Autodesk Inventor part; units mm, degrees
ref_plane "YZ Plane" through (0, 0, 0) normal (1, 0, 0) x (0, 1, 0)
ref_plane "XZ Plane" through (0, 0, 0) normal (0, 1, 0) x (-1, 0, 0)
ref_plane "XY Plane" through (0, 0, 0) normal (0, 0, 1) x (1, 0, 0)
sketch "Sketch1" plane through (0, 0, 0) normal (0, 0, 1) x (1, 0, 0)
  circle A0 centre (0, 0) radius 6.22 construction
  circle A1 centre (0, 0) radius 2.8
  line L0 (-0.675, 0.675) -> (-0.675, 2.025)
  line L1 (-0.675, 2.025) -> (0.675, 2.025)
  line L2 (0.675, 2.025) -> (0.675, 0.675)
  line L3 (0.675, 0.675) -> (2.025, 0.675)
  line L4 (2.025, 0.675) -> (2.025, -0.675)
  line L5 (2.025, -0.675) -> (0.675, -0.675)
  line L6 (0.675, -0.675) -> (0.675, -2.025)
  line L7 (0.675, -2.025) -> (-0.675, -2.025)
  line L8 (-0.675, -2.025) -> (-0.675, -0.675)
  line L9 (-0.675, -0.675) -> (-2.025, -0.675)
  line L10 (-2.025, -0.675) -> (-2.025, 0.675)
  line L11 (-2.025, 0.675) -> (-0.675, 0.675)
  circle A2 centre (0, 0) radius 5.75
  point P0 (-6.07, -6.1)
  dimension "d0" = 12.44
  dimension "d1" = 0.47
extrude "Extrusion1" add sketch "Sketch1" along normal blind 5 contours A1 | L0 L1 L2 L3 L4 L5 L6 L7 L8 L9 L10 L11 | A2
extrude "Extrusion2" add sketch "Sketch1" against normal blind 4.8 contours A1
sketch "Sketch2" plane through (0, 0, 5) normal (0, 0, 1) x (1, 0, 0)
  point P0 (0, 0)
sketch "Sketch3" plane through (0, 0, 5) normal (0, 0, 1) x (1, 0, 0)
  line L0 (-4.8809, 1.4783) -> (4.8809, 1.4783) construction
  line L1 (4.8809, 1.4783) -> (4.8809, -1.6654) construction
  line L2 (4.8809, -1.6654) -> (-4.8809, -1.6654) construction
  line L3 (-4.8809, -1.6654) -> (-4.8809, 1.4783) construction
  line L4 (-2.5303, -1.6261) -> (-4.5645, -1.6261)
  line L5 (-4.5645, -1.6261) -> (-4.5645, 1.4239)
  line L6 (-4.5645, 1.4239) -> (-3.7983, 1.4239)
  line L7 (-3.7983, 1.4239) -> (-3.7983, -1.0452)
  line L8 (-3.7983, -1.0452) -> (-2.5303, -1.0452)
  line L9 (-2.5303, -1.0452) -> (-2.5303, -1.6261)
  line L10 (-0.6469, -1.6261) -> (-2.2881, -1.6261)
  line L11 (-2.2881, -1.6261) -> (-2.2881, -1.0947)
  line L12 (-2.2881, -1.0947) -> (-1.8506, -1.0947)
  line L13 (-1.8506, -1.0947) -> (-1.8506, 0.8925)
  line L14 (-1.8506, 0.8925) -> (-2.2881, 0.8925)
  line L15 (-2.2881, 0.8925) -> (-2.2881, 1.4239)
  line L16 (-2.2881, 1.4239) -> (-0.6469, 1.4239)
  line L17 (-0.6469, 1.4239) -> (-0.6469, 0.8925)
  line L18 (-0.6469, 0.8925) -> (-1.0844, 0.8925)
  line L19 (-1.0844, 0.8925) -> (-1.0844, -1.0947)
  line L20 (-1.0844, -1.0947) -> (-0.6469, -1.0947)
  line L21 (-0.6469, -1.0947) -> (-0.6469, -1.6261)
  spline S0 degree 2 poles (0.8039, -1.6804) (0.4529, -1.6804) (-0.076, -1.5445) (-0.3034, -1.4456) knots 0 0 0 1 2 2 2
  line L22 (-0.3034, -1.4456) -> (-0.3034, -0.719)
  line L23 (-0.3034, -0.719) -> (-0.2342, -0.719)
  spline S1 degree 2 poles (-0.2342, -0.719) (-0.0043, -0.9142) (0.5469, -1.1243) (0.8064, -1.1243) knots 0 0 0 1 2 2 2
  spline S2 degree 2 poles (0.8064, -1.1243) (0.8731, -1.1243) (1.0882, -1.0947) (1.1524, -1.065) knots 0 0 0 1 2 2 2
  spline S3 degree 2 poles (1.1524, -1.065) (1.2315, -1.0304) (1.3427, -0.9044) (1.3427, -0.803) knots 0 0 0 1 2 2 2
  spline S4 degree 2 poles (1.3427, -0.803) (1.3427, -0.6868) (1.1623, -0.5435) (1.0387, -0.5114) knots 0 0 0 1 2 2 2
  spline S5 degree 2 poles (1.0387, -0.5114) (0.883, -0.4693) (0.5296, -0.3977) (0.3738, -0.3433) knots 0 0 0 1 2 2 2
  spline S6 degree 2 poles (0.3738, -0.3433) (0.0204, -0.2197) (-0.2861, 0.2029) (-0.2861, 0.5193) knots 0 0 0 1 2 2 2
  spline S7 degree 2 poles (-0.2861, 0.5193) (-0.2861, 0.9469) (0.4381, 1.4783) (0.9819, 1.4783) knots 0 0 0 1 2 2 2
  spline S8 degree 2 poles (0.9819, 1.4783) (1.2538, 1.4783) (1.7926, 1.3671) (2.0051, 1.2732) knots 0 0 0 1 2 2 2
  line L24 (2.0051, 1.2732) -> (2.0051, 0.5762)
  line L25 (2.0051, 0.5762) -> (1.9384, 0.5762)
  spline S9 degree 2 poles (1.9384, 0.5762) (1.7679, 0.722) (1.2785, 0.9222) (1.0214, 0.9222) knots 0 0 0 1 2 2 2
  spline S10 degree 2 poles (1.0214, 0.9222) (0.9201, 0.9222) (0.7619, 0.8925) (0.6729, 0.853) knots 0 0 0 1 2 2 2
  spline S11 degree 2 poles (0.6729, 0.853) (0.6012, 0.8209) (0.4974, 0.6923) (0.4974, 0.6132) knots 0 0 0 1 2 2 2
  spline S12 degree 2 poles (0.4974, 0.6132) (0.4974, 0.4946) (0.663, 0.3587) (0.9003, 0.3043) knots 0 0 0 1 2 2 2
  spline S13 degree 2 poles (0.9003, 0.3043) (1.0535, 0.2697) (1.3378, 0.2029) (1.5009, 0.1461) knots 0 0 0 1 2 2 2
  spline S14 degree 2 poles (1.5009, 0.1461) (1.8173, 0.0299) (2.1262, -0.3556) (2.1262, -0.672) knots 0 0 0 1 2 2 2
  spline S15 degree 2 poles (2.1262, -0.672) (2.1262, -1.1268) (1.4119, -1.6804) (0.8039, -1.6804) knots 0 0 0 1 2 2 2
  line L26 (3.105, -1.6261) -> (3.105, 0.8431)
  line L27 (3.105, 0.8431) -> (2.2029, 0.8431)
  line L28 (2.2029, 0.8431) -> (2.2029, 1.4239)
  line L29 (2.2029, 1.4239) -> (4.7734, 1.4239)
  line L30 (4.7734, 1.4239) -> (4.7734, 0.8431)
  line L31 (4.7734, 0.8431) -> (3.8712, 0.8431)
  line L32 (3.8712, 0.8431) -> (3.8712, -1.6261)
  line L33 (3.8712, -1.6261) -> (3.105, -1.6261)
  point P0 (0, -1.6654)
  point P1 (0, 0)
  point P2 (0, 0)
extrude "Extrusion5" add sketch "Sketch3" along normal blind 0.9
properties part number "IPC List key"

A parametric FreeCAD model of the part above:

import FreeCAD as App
import Part
import Sketcher
from FreeCAD import Vector

doc = App.newDocument("Part")
body = doc.addObject("PartDesign::Body", "Body")

# Sketch on XY plane
sketch1 = body.newObject("Sketcher::SketchObject", "Sketch")
sketch1.AttachmentSupport = (doc.getObject("XY_Plane"), [""])
sketch1.MapMode = "FlatFace"
sketch1.addGeometry(Part.Circle(Vector(0, 0, 0), Vector(0, 0, 1), 6), False)
sketch1.addConstraint([
    Sketcher.Constraint("Coincident", 0, 3, -1, 1),
    Sketcher.Constraint("Diameter", 0, 11.5),
])
pad1 = body.newObject("PartDesign::Pad", "Pad")
pad1.Profile = sketch1
pad1.Length = 5

# Sketch on XY plane
sketch2 = body.newObject("Sketcher::SketchObject", "Sketch001")
sketch2.AttachmentSupport = (doc.getObject("XY_Plane"), [""])
sketch2.MapMode = "FlatFace"
sketch2.addGeometry([
    Part.Circle(Vector(0, 0, 0), Vector(0, 0, 1), 2.8),  # 0
    Part.LineSegment(Vector(-2, 0.7, 0), Vector(-0.7, 0.7, 0)),  # 1
    Part.LineSegment(Vector(-0.7, 0.7, 0), Vector(-0.7, 2, 0)),  # 2
    Part.LineSegment(Vector(-0.7, 2, 0), Vector(0.7, 2, 0)),  # 3
    Part.LineSegment(Vector(0.7, 2, 0), Vector(0.7, 0.7, 0)),  # 4
    Part.LineSegment(Vector(0.7, 0.7, 0), Vector(2, 0.7, 0)),  # 5
    Part.LineSegment(Vector(2, 0.7, 0), Vector(2, -0.7, 0)),  # 6
    Part.LineSegment(Vector(2, -0.7, 0), Vector(0.7, -0.7, 0)),  # 7
    Part.LineSegment(Vector(0.7, -0.7, 0), Vector(0.7, -2, 0)),  # 8
    Part.LineSegment(Vector(0.7, -2, 0), Vector(-0.7, -2, 0)),  # 9
    Part.LineSegment(Vector(-0.7, -2, 0), Vector(-0.7, -0.7, 0)),  # 10
    Part.LineSegment(Vector(-0.7, -0.7, 0), Vector(-2, -0.7, 0)),  # 11
    Part.LineSegment(Vector(-2, -0.7, 0), Vector(-2, 0.7, 0)),  # 12
], False)
sketch2.addConstraint([
    Sketcher.Constraint("Coincident", 1, 2, 2, 1),
    Sketcher.Constraint("Coincident", 2, 2, 3, 1),
    Sketcher.Constraint("Coincident", 3, 2, 4, 1),
    Sketcher.Constraint("Coincident", 4, 2, 5, 1),
    Sketcher.Constraint("Coincident", 5, 2, 6, 1),
    Sketcher.Constraint("Coincident", 6, 2, 7, 1),
    Sketcher.Constraint("Coincident", 7, 2, 8, 1),
    Sketcher.Constraint("Coincident", 8, 2, 9, 1),
    Sketcher.Constraint("Coincident", 9, 2, 10, 1),
    Sketcher.Constraint("Coincident", 10, 2, 11, 1),
    Sketcher.Constraint("Coincident", 11, 2, 12, 1),
    Sketcher.Constraint("Coincident", 12, 2, 1, 1),
    Sketcher.Constraint("Horizontal", 1),
    Sketcher.Constraint("Vertical", 2),
    Sketcher.Constraint("Horizontal", 3),
    Sketcher.Constraint("Vertical", 4),
    Sketcher.Constraint("Horizontal", 5),
    Sketcher.Constraint("Vertical", 6),
    Sketcher.Constraint("Horizontal", 7),
    Sketcher.Constraint("Vertical", 8),
    Sketcher.Constraint("Horizontal", 9),
    Sketcher.Constraint("Vertical", 10),
    Sketcher.Constraint("Horizontal", 11),
    Sketcher.Constraint("Vertical", 12),
    Sketcher.Constraint("Coincident", 0, 3, -1, 1),
    Sketcher.Constraint("Symmetric", 1, 2, 7, 2, -1, 1),
    Sketcher.Constraint("Symmetric", 3, 2, 9, 2, -1, 1),
    Sketcher.Constraint("Symmetric", 5, 2, 11, 2, -1, 1),
    Sketcher.Constraint("Symmetric", 1, 2, 4, 2, -2),
    Sketcher.Constraint("Equal", 1, 3),
    Sketcher.Constraint("Equal", 11, 2),
    Sketcher.Constraint("Equal", 4, 6),
    Sketcher.Constraint("Diameter", 0, 5.6),
    Sketcher.Constraint("DistanceX", 1, 1, 1, 2, 1.35),
])
pad2 = body.newObject("PartDesign::Pad", "Pad001")
pad2.Profile = sketch2
pad2.Length = 4.8
pad2.Reversed = True

# Sketch on XY plane
sketch3 = body.newObject("Sketcher::SketchObject", "Sketch002")
sketch3.AttachmentSupport = (doc.getObject("XY_Plane"), [""])
sketch3.MapMode = "FlatFace"
sketch3.AttachmentOffset = App.Placement(Vector(0, 0, 5), App.Rotation())
sketch3.addGeometry([
    Part.LineSegment(Vector(-4.5645, -1.6261, 0), Vector(-2.5303, -1.6261, 0)),  # 0
    Part.LineSegment(Vector(-2.5303, -1.6261, 0), Vector(-2.5303, -1.0452, 0)),  # 1
    Part.LineSegment(Vector(-2.5303, -1.0452, 0), Vector(-3.7983, -1.0452, 0)),  # 2
    Part.LineSegment(Vector(-3.7983, -1.0452, 0), Vector(-3.7983, 1.4239, 0)),  # 3
    Part.LineSegment(Vector(-3.7983, 1.4239, 0), Vector(-4.5645, 1.4239, 0)),  # 4
    Part.LineSegment(Vector(-4.5645, 1.4239, 0), Vector(-4.5645, -1.6261, 0)),  # 5
    Part.LineSegment(Vector(-2.2881, -1.6261, 0), Vector(-0.6469, -1.6261, 0)),  # 6
    Part.LineSegment(Vector(-0.6469, -1.6261, 0), Vector(-0.6469, -1.0947, 0)),  # 7
    Part.LineSegment(Vector(-0.6469, -1.0947, 0), Vector(-1.0844, -1.0947, 0)),  # 8
    Part.LineSegment(Vector(-1.0844, -1.0947, 0), Vector(-1.0844, 0.8925, 0)),  # 9
    Part.LineSegment(Vector(-1.0844, 0.8925, 0), Vector(-0.6469, 0.8925, 0)),  # 10
    Part.LineSegment(Vector(-0.6469, 0.8925, 0), Vector(-0.6469, 1.4239, 0)),  # 11
    Part.LineSegment(Vector(-0.6469, 1.4239, 0), Vector(-2.2881, 1.4239, 0)),  # 12
    Part.LineSegment(Vector(-2.2881, 1.4239, 0), Vector(-2.2881, 0.8925, 0)),  # 13
    Part.LineSegment(Vector(-2.2881, 0.8925, 0), Vector(-1.8506, 0.8925, 0)),  # 14
    Part.LineSegment(Vector(-1.8506, 0.8925, 0), Vector(-1.8506, -1.0947, 0)),  # 15
    Part.LineSegment(Vector(-1.8506, -1.0947, 0), Vector(-2.2881, -1.0947, 0)),  # 16
    Part.LineSegment(Vector(-2.2881, -1.0947, 0), Vector(-2.2881, -1.6261, 0)),  # 17
    Part.BSplineCurve([Vector(0.8039, -1.6804, 0), Vector(0.4529, -1.6804, 0), Vector(-0.076, -1.5445, 0), Vector(-0.3034, -1.4456, 0)], [3, 1, 3], [0, 1, 2], False, 2, [1, 1, 1, 1], False),  # 18
    Part.BSplineCurve([Vector(2.1262, -0.672, 0), Vector(2.1262, -1.1268, 0), Vector(1.4119, -1.6804, 0), Vector(0.8039, -1.6804, 0)], [3, 1, 3], [0, 1, 2], False, 2, [1, 1, 1, 1], False),  # 19
    Part.BSplineCurve([Vector(1.5009, 0.1461, 0), Vector(1.8173, 0.0299, 0), Vector(2.1262, -0.3556, 0), Vector(2.1262, -0.672, 0)], [3, 1, 3], [0, 1, 2], False, 2, [1, 1, 1, 1], False),  # 20
    Part.BSplineCurve([Vector(0.9003, 0.3043, 0), Vector(1.0535, 0.2697, 0), Vector(1.3378, 0.2029, 0), Vector(1.5009, 0.1461, 0)], [3, 1, 3], [0, 1, 2], False, 2, [1, 1, 1, 1], False),  # 21
    Part.BSplineCurve([Vector(0.4974, 0.6132, 0), Vector(0.4974, 0.4946, 0), Vector(0.663, 0.3587, 0), Vector(0.9003, 0.3043, 0)], [3, 1, 3], [0, 1, 2], False, 2, [1, 1, 1, 1], False),  # 22
    Part.BSplineCurve([Vector(0.6729, 0.853, 0), Vector(0.6012, 0.8209, 0), Vector(0.4974, 0.6923, 0), Vector(0.4974, 0.6132, 0)], [3, 1, 3], [0, 1, 2], False, 2, [1, 1, 1, 1], False),  # 23
    Part.BSplineCurve([Vector(1.0214, 0.9222, 0), Vector(0.9201, 0.9222, 0), Vector(0.7619, 0.8925, 0), Vector(0.6729, 0.853, 0)], [3, 1, 3], [0, 1, 2], False, 2, [1, 1, 1, 1], False),  # 24
    Part.BSplineCurve([Vector(1.9384, 0.5762, 0), Vector(1.7679, 0.722, 0), Vector(1.2785, 0.9222, 0), Vector(1.0214, 0.9222, 0)], [3, 1, 3], [0, 1, 2], False, 2, [1, 1, 1, 1], False),  # 25
    Part.LineSegment(Vector(1.9384, 0.5762, 0), Vector(2.0051, 0.5762, 0)),  # 26
    Part.LineSegment(Vector(2.0051, 0.5762, 0), Vector(2.0051, 1.2732, 0)),  # 27
    Part.BSplineCurve([Vector(0.9819, 1.4783, 0), Vector(1.2538, 1.4783, 0), Vector(1.7926, 1.3671, 0), Vector(2.0051, 1.2732, 0)], [3, 1, 3], [0, 1, 2], False, 2, [1, 1, 1, 1], False),  # 28
    Part.BSplineCurve([Vector(-0.2861, 0.5193, 0), Vector(-0.2861, 0.9469, 0), Vector(0.4381, 1.4783, 0), Vector(0.9819, 1.4783, 0)], [3, 1, 3], [0, 1, 2], False, 2, [1, 1, 1, 1], False),  # 29
    Part.BSplineCurve([Vector(0.3738, -0.3433, 0), Vector(0.0204, -0.2197, 0), Vector(-0.2861, 0.2029, 0), Vector(-0.2861, 0.5193, 0)], [3, 1, 3], [0, 1, 2], False, 2, [1, 1, 1, 1], False),  # 30
    Part.BSplineCurve([Vector(1.0387, -0.5114, 0), Vector(0.883, -0.4693, 0), Vector(0.5296, -0.3977, 0), Vector(0.3738, -0.3433, 0)], [3, 1, 3], [0, 1, 2], False, 2, [1, 1, 1, 1], False),  # 31
    Part.BSplineCurve([Vector(1.3427, -0.803, 0), Vector(1.3427, -0.6868, 0), Vector(1.1623, -0.5435, 0), Vector(1.0387, -0.5114, 0)], [3, 1, 3], [0, 1, 2], False, 2, [1, 1, 1, 1], False),  # 32
    Part.BSplineCurve([Vector(1.1524, -1.065, 0), Vector(1.2315, -1.0304, 0), Vector(1.3427, -0.9044, 0), Vector(1.3427, -0.803, 0)], [3, 1, 3], [0, 1, 2], False, 2, [1, 1, 1, 1], False),  # 33
    Part.BSplineCurve([Vector(0.8064, -1.1243, 0), Vector(0.8731, -1.1243, 0), Vector(1.0882, -1.0947, 0), Vector(1.1524, -1.065, 0)], [3, 1, 3], [0, 1, 2], False, 2, [1, 1, 1, 1], False),  # 34
    Part.BSplineCurve([Vector(-0.2342, -0.719, 0), Vector(-0.0043, -0.9142, 0), Vector(0.5469, -1.1243, 0), Vector(0.8064, -1.1243, 0)], [3, 1, 3], [0, 1, 2], False, 2, [1, 1, 1, 1], False),  # 35
    Part.LineSegment(Vector(-0.2342, -0.719, 0), Vector(-0.3034, -0.719, 0)),  # 36
    Part.LineSegment(Vector(-0.3034, -0.719, 0), Vector(-0.3034, -1.4456, 0)),  # 37
    Part.LineSegment(Vector(3.105, 0.8431, 0), Vector(3.105, -1.6261, 0)),  # 38
    Part.LineSegment(Vector(3.105, -1.6261, 0), Vector(3.8712, -1.6261, 0)),  # 39
    Part.LineSegment(Vector(3.8712, -1.6261, 0), Vector(3.8712, 0.8431, 0)),  # 40
    Part.LineSegment(Vector(3.8712, 0.8431, 0), Vector(4.7734, 0.8431, 0)),  # 41
    Part.LineSegment(Vector(4.7734, 0.8431, 0), Vector(4.7734, 1.4239, 0)),  # 42
    Part.LineSegment(Vector(4.7734, 1.4239, 0), Vector(2.2029, 1.4239, 0)),  # 43
    Part.LineSegment(Vector(2.2029, 1.4239, 0), Vector(2.2029, 0.8431, 0)),  # 44
    Part.LineSegment(Vector(2.2029, 0.8431, 0), Vector(3.105, 0.8431, 0)),  # 45
], False)
sketch3.addConstraint([
    Sketcher.Constraint("Block", 18),
    Sketcher.Constraint("Block", 19),
    Sketcher.Constraint("Block", 20),
    Sketcher.Constraint("Block", 21),
    Sketcher.Constraint("Block", 22),
    Sketcher.Constraint("Block", 23),
    Sketcher.Constraint("Block", 24),
    Sketcher.Constraint("Block", 25),
    Sketcher.Constraint("Block", 28),
    Sketcher.Constraint("Block", 29),
    Sketcher.Constraint("Block", 30),
    Sketcher.Constraint("Block", 31),
    Sketcher.Constraint("Block", 32),
    Sketcher.Constraint("Block", 33),
    Sketcher.Constraint("Block", 34),
    Sketcher.Constraint("Block", 35),
    Sketcher.Constraint("Coincident", 0, 2, 1, 1),
    Sketcher.Constraint("Coincident", 1, 2, 2, 1),
    Sketcher.Constraint("Coincident", 2, 2, 3, 1),
    Sketcher.Constraint("Coincident", 3, 2, 4, 1),
    Sketcher.Constraint("Coincident", 4, 2, 5, 1),
    Sketcher.Constraint("Coincident", 5, 2, 0, 1),
    Sketcher.Constraint("Coincident", 6, 2, 7, 1),
    Sketcher.Constraint("Coincident", 7, 2, 8, 1),
    Sketcher.Constraint("Coincident", 8, 2, 9, 1),
    Sketcher.Constraint("Coincident", 9, 2, 10, 1),
    Sketcher.Constraint("Coincident", 10, 2, 11, 1),
    Sketcher.Constraint("Coincident", 11, 2, 12, 1),
    Sketcher.Constraint("Coincident", 12, 2, 13, 1),
    Sketcher.Constraint("Coincident", 13, 2, 14, 1),
    Sketcher.Constraint("Coincident", 14, 2, 15, 1),
    Sketcher.Constraint("Coincident", 15, 2, 16, 1),
    Sketcher.Constraint("Coincident", 16, 2, 17, 1),
    Sketcher.Constraint("Coincident", 17, 2, 6, 1),
    Sketcher.Constraint("Coincident", 25, 1, 26, 1),
    Sketcher.Constraint("Coincident", 26, 2, 27, 1),
    Sketcher.Constraint("Coincident", 27, 2, 28, 2),
    Sketcher.Constraint("Coincident", 35, 1, 36, 1),
    Sketcher.Constraint("Coincident", 36, 2, 37, 1),
    Sketcher.Constraint("Coincident", 37, 2, 18, 2),
    Sketcher.Constraint("Coincident", 38, 2, 39, 1),
    Sketcher.Constraint("Coincident", 39, 2, 40, 1),
    Sketcher.Constraint("Coincident", 40, 2, 41, 1),
    Sketcher.Constraint("Coincident", 41, 2, 42, 1),
    Sketcher.Constraint("Coincident", 42, 2, 43, 1),
    Sketcher.Constraint("Coincident", 43, 2, 44, 1),
    Sketcher.Constraint("Coincident", 44, 2, 45, 1),
    Sketcher.Constraint("Coincident", 45, 2, 38, 1),
    Sketcher.Constraint("Horizontal", 0),
    Sketcher.Constraint("Vertical", 1),
    Sketcher.Constraint("Horizontal", 2),
    Sketcher.Constraint("Vertical", 3),
    Sketcher.Constraint("Horizontal", 4),
    Sketcher.Constraint("Vertical", 5),
    Sketcher.Constraint("Horizontal", 6),
    Sketcher.Constraint("Vertical", 7),
    Sketcher.Constraint("Horizontal", 8),
    Sketcher.Constraint("Vertical", 9),
    Sketcher.Constraint("Horizontal", 10),
    Sketcher.Constraint("Vertical", 11),
    Sketcher.Constraint("Horizontal", 12),
    Sketcher.Constraint("Vertical", 13),
    Sketcher.Constraint("Horizontal", 14),
    Sketcher.Constraint("Vertical", 15),
    Sketcher.Constraint("Horizontal", 16),
    Sketcher.Constraint("Vertical", 17),
    Sketcher.Constraint("Horizontal", 26),
    Sketcher.Constraint("Vertical", 27),
    Sketcher.Constraint("Horizontal", 36),
    Sketcher.Constraint("Vertical", 37),
    Sketcher.Constraint("Vertical", 38),
    Sketcher.Constraint("Horizontal", 39),
    Sketcher.Constraint("Vertical", 40),
    Sketcher.Constraint("Horizontal", 41),
    Sketcher.Constraint("Vertical", 42),
    Sketcher.Constraint("Horizontal", 43),
    Sketcher.Constraint("Vertical", 44),
    Sketcher.Constraint("Horizontal", 45),
    Sketcher.Constraint("Horizontal", 5, 2, 6, 2),
    Sketcher.Constraint("Horizontal", 4, 2, 11, 2),
    Sketcher.Constraint("Horizontal", 10, 2, 13, 2),
    Sketcher.Constraint("Horizontal", 8, 2, 15, 2),
    Sketcher.Constraint("Horizontal", 17, 2, 38, 2),
    Sketcher.Constraint("Horizontal", 12, 2, 42, 2),
    Sketcher.Constraint("Horizontal", 41, 2, 44, 2),
    Sketcher.Constraint("Vertical", 7, 2, 10, 2),
    Sketcher.Constraint("Vertical", 13, 2, 16, 2),
    Sketcher.Constraint("Equal", 10, 14),
    Sketcher.Constraint("Equal", 4, 39),
    Sketcher.Constraint("Equal", 41, 45),
    Sketcher.Constraint("Equal", 7, 11),
    Sketcher.Constraint("Equal", 3, 38),
    Sketcher.Constraint("DistanceY", 5, 2, 5, 1, 3.05),
    Sketcher.Constraint("DistanceX", 26, 2, 38, 2, 1.1),
    Sketcher.Constraint("DistanceX", 2, 2, 2, 1, 1.268),
    Sketcher.Constraint("DistanceX", 45, 1, 45, 2, 0.902),
    Sketcher.Constraint("DistanceY", 1, 1, 1, 2, 0.581),
    Sketcher.Constraint("DistanceY", 40, 2, 27, 2, 0.43),
    Sketcher.Constraint("DistanceX", 0, 1, 0, 2, 2.0342),
    Sketcher.Constraint("DistanceX", 6, 1, 6, 2, 1.6412),
    Sketcher.Constraint("DistanceX", 8, 2, 8, 1, 0.4375),
    Sketcher.Constraint("DistanceY", 7, 1, 7, 2, 0.5314),
    Sketcher.Constraint("DistanceX", 6, 2, -1, 1, 0.647),
    Sketcher.Constraint("DistanceX", 1, 2, 8, 2, 1.446),
])
pad3 = body.newObject("PartDesign::Pad", "Pad002")
pad3.Profile = sketch3
pad3.Length = 0.9

doc.recompute()
